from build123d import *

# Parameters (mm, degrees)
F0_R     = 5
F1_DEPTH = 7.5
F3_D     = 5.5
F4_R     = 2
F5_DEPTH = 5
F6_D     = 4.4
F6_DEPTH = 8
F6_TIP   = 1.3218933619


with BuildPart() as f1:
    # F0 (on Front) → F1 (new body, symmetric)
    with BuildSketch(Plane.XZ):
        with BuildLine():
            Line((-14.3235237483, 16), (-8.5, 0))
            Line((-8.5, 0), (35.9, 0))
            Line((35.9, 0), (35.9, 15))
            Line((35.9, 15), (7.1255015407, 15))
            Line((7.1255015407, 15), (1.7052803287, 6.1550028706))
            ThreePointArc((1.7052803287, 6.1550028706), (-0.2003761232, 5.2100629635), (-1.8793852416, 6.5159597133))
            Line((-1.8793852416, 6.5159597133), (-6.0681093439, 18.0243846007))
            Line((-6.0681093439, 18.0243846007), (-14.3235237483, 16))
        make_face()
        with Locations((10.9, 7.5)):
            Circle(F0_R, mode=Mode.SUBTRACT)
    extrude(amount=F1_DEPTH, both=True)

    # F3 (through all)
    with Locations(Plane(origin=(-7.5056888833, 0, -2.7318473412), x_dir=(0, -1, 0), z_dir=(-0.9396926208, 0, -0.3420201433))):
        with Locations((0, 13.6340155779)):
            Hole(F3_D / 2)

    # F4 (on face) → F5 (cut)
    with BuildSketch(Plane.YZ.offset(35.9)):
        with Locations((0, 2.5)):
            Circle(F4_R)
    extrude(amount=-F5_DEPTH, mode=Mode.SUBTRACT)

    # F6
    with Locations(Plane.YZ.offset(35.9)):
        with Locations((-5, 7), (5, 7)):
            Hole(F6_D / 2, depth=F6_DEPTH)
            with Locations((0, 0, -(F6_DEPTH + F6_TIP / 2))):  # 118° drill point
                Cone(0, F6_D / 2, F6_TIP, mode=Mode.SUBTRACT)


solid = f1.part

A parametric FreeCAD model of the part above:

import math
import FreeCAD as App
import Part
import Sketcher

V = App.Vector
Q = App.Units.Quantity

doc = App.newDocument("Part")
body = doc.addObject("PartDesign::Body", "Body")

# Sketch on XZ plane
sketch1 = body.newObject("Sketcher::SketchObject", "Sketch")
sketch1.AttachmentSupport = (doc.getObject("XZ_Plane"), [""])
sketch1.MapMode = "FlatFace"
sketch1.addGeometry([
    Part.LineSegment(V(-14.3, 16, 0), V(-8.5, 0, 0)),  # 0
    Part.LineSegment(V(-8.5, 0, 0), V(35.9, 0, 0)),  # 1
    Part.LineSegment(V(35.9, 0, 0), V(35.9, 15, 0)),  # 2
    Part.LineSegment(V(35.9, 15, 0), V(7.1, 15, 0)),  # 3
    Part.LineSegment(V(7.1, 15, 0), V(1.7, 6.2, 0)),  # 4
    Part.ArcOfCircle(Part.Circle(V(0, 7.2, 0), V(0, 0, 1), 2), math.radians(-160), math.radians(-31)),  # 5
    Part.LineSegment(V(-1.9, 6.5, 0), V(-6.1, 18, 0)),  # 6
    Part.LineSegment(V(-6.1, 18, 0), V(-14.3, 16, 0)),  # 7
    Part.Circle(V(10.9, 7.5, 0), V(0, 0, 1), 5),  # 8
], False)
sketch1.addConstraint([
    Sketcher.Constraint("Coincident", 0, 2, 1, 1),
    Sketcher.Constraint("Coincident", 1, 2, 2, 1),
    Sketcher.Constraint("Coincident", 2, 2, 3, 1),
    Sketcher.Constraint("Coincident", 3, 2, 4, 1),
    Sketcher.Constraint("Tangent", 4, 2, 5, 2),
    Sketcher.Constraint("Tangent", 5, 1, 6, 1),
    Sketcher.Constraint("Coincident", 6, 2, 7, 1),
    Sketcher.Constraint("Coincident", 7, 2, 0, 1),
    Sketcher.Constraint("Horizontal", 1),
    Sketcher.Constraint("Vertical", 2),
    Sketcher.Constraint("Horizontal", 3),
    Sketcher.Constraint("PointOnObject", 5, 3, -2),
    Sketcher.Constraint("PointOnObject", 0, 2, -1),
    Sketcher.Constraint("Parallel", 0, 6),
    Sketcher.Constraint("Diameter", 8, 10.0),
    Sketcher.Constraint("Radius", 5, 2.0),
    Sketcher.Constraint("DistanceY", 2, 1, 2, 2, 15.0),
    Sketcher.Constraint("Angle", 0, Q("-70 deg")),
    Sketcher.Constraint("DistanceX", 1, 1, 1, 2, 44.4),
    Sketcher.Constraint("DistanceY", -1, 1, 7, 2, 16.0),
    Sketcher.Constraint("Angle", 4, Q("-121.5 deg")),
    Sketcher.Constraint("DistanceX", 8, 3, 1, 2, 25.0),
    Sketcher.Constraint("Distance", 7, 8.5),
    Sketcher.Constraint("DistanceY", -1, 1, 5, 3, 7.2),
    Sketcher.Constraint("DistanceX", -1, 1, 8, 3, 10.9),
    Sketcher.Constraint("DistanceY", -1, 1, 8, 3, 7.5),
])
pad1 = body.newObject("PartDesign::Pad", "Pad")
pad1.Profile = sketch1
pad1.Length = 15
pad1.Midplane = True

# Sketch on an angled plane
sketch2 = body.newObject("Sketcher::SketchObject", "Sketch001")
sketch2.Placement = App.Placement(V(-7.505689, 0, -2.731847), App.Rotation(V(0, -1, 0), V(-0.342020143, 0, 0.939692621), V(-0.939692621, 0, -0.342020143), "ZXY"))
sketch2.addGeometry(Part.Circle(V(0, 13.6, 0), V(0, 0, 1), 2.8), False)
sketch2.addConstraint([
    Sketcher.Constraint("PointOnObject", 0, 3, -2),
    Sketcher.Constraint("Diameter", 0, 5.5),
    Sketcher.Constraint("DistanceY", -1, 1, 0, 3, 13.634016),
])
doc.recompute()
hole = body.newObject("PartDesign::Hole", "Hole")
hole.Profile = sketch2
hole.ThreadType = "None"
hole.Diameter = 5.5
hole.DepthType = "ThroughAll"

# Sketch on YZ plane
sketch3 = body.newObject("Sketcher::SketchObject", "Sketch002")
sketch3.AttachmentSupport = (doc.getObject("YZ_Plane"), [""])
sketch3.MapMode = "FlatFace"
sketch3.AttachmentOffset = App.Placement(V(0, 0, 35.9), App.Rotation())
sketch3.addGeometry(Part.Circle(V(0, 2.5, 0), V(0, 0, 1), 2), False)
sketch3.addConstraint([
    Sketcher.Constraint("PointOnObject", 0, 3, -2),
    Sketcher.Constraint("Diameter", 0, 4.0),
    Sketcher.Constraint("DistanceY", -1, 1, 0, 3, 2.5),
])
pocket1 = body.newObject("PartDesign::Pocket", "Pocket")
pocket1.Profile = sketch3
pocket1.Length = 5

# Sketch on YZ plane
sketch4 = body.newObject("Sketcher::SketchObject", "Sketch003")
sketch4.AttachmentSupport = (doc.getObject("YZ_Plane"), [""])
sketch4.MapMode = "FlatFace"
sketch4.AttachmentOffset = App.Placement(V(0, 0, 35.9), App.Rotation())
sketch4.addGeometry([
    Part.Circle(V(-5, 7, 0), V(0, 0, 1), 2.2),
    Part.Circle(V(5, 7, 0), V(0, 0, 1), 2.2),
], False)
sketch4.addConstraint([
    Sketcher.Constraint("Equal", 0, 1),
    Sketcher.Constraint("Symmetric", 0, 3, 1, 3, -2),
    Sketcher.Constraint("Diameter", 0, 4.4),
    Sketcher.Constraint("DistanceX", 0, 3, -1, 1, 5.0),
    Sketcher.Constraint("DistanceY", -1, 1, 0, 3, 7.0),
])
doc.recompute()
hole2 = body.newObject("PartDesign::Hole", "Hole001")
hole2.Profile = sketch4
hole2.ThreadType = "None"
hole2.Diameter = 4.4
hole2.DepthType = "Dimension"
hole2.Depth = 8
hole2.DrillPoint = "Angled"
hole2.DrillPointAngle = 118

doc.recompute()
